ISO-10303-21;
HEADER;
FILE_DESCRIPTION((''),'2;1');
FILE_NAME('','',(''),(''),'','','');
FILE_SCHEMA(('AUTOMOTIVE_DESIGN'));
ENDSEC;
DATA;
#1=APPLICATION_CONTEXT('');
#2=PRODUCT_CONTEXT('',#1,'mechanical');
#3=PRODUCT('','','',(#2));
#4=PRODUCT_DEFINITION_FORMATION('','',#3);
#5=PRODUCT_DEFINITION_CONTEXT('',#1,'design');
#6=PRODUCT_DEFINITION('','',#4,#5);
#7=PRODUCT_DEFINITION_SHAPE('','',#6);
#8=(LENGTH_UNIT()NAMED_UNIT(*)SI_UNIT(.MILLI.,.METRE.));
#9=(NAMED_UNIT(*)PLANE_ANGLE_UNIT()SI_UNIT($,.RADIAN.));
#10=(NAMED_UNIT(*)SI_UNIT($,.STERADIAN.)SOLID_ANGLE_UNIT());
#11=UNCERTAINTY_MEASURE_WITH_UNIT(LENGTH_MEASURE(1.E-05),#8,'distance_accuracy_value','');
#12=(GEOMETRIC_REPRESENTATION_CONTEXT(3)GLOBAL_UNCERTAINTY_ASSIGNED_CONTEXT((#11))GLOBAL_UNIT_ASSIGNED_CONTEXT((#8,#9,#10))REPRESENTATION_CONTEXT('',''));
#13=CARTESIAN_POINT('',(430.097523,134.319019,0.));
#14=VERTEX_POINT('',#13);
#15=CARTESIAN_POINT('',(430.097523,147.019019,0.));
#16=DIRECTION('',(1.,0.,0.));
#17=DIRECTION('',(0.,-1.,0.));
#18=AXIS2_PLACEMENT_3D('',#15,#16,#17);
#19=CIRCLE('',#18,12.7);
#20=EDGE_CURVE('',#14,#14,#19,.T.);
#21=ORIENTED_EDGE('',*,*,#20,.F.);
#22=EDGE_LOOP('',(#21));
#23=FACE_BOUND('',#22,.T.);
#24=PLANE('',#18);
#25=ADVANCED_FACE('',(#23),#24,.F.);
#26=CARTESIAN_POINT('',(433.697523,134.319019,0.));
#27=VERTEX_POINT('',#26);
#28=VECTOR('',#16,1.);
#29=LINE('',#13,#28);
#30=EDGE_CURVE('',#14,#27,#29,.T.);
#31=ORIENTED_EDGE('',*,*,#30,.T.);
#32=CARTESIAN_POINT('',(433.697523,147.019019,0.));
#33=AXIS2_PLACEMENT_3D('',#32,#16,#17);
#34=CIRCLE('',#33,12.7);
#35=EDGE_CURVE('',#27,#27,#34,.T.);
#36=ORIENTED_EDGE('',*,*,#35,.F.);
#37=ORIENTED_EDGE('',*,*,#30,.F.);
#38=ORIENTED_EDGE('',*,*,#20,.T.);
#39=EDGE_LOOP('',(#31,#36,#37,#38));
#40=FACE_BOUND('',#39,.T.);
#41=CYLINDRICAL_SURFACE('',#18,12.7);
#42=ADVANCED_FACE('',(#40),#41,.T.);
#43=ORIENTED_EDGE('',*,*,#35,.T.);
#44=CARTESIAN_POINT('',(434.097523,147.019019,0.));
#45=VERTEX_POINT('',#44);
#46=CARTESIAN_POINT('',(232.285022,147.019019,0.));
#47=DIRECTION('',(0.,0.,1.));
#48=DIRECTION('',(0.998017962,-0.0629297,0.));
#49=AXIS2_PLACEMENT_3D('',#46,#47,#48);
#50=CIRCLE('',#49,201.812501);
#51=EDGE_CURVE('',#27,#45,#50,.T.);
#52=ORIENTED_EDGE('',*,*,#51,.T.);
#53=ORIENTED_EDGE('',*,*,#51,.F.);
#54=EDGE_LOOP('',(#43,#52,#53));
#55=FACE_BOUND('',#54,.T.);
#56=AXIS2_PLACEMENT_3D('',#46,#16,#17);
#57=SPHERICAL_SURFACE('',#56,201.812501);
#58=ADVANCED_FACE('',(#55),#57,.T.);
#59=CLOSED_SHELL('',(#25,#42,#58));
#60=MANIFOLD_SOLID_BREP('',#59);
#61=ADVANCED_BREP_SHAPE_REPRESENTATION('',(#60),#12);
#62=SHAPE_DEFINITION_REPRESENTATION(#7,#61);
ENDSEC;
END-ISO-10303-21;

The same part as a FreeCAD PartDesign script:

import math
import FreeCAD as App
import Part
import Sketcher

doc = App.newDocument("Part")
body = doc.addObject("PartDesign::Body", "Body")

sketch1 = doc.addObject("Sketcher::SketchObject", "Sketch")
body.addObject(sketch1)
sketch1.AttachmentSupport = (doc.XY_Plane, [""])
sketch1.MapMode = "FlatFace"
sketch1.addGeometry([
    Part.LineSegment(App.Vector(430.1, 159.7, 0), App.Vector(430.1, 147, 0)),
    Part.LineSegment(App.Vector(430.1, 147, 0), App.Vector(434.1, 147, 0)),
    Part.ArcOfCircle(Part.Circle(App.Vector(232.3, 147, 0), App.Vector(0, 0, 1), 201.8), math.radians(0), math.radians(3.61)),
    Part.LineSegment(App.Vector(433.7, 159.7, 0), App.Vector(430.1, 159.7, 0)),
], False)
sketch1.addGeometry(Part.LineSegment(App.Vector(232.3, 147, 0), App.Vector(434.1, 147, 0)), True)
sketch1.addConstraint([
    Sketcher.Constraint("Coincident", 0, 2, 1, 1),
    Sketcher.Constraint("Coincident", 1, 2, 2, 1),
    Sketcher.Constraint("Coincident", 2, 2, 3, 1),
    Sketcher.Constraint("Coincident", 3, 2, 0, 1),
    Sketcher.Constraint("Vertical", 0),
    Sketcher.Constraint("Horizontal", 1),
    Sketcher.Constraint("Horizontal", 3),
    Sketcher.Constraint("Horizontal", 4),
    Sketcher.Constraint("Coincident", 4, 1, 2, 3),
    Sketcher.Constraint("Coincident", 4, 2, 1, 2),
    Sketcher.Constraint("DistanceX", 1, 1, 1, 2, 4.0),
    Sketcher.Constraint("DistanceX", 3, 2, 3, 1, 3.6),
    Sketcher.Constraint("DistanceY", 0, 2, 0, 1, 12.7),
    Sketcher.Constraint("DistanceY", -1, 1, 2, 3, 147.019019),
    Sketcher.Constraint("DistanceX", -1, 1, 2, 3, 232.285022),
])
revolution = doc.addObject("PartDesign::Revolution", "Revolution")
body.addObject(revolution)
revolution.Profile = sketch1
revolution.ReferenceAxis = (sketch1, ["Axis0"])
revolution.Angle = 360

doc.recompute()
